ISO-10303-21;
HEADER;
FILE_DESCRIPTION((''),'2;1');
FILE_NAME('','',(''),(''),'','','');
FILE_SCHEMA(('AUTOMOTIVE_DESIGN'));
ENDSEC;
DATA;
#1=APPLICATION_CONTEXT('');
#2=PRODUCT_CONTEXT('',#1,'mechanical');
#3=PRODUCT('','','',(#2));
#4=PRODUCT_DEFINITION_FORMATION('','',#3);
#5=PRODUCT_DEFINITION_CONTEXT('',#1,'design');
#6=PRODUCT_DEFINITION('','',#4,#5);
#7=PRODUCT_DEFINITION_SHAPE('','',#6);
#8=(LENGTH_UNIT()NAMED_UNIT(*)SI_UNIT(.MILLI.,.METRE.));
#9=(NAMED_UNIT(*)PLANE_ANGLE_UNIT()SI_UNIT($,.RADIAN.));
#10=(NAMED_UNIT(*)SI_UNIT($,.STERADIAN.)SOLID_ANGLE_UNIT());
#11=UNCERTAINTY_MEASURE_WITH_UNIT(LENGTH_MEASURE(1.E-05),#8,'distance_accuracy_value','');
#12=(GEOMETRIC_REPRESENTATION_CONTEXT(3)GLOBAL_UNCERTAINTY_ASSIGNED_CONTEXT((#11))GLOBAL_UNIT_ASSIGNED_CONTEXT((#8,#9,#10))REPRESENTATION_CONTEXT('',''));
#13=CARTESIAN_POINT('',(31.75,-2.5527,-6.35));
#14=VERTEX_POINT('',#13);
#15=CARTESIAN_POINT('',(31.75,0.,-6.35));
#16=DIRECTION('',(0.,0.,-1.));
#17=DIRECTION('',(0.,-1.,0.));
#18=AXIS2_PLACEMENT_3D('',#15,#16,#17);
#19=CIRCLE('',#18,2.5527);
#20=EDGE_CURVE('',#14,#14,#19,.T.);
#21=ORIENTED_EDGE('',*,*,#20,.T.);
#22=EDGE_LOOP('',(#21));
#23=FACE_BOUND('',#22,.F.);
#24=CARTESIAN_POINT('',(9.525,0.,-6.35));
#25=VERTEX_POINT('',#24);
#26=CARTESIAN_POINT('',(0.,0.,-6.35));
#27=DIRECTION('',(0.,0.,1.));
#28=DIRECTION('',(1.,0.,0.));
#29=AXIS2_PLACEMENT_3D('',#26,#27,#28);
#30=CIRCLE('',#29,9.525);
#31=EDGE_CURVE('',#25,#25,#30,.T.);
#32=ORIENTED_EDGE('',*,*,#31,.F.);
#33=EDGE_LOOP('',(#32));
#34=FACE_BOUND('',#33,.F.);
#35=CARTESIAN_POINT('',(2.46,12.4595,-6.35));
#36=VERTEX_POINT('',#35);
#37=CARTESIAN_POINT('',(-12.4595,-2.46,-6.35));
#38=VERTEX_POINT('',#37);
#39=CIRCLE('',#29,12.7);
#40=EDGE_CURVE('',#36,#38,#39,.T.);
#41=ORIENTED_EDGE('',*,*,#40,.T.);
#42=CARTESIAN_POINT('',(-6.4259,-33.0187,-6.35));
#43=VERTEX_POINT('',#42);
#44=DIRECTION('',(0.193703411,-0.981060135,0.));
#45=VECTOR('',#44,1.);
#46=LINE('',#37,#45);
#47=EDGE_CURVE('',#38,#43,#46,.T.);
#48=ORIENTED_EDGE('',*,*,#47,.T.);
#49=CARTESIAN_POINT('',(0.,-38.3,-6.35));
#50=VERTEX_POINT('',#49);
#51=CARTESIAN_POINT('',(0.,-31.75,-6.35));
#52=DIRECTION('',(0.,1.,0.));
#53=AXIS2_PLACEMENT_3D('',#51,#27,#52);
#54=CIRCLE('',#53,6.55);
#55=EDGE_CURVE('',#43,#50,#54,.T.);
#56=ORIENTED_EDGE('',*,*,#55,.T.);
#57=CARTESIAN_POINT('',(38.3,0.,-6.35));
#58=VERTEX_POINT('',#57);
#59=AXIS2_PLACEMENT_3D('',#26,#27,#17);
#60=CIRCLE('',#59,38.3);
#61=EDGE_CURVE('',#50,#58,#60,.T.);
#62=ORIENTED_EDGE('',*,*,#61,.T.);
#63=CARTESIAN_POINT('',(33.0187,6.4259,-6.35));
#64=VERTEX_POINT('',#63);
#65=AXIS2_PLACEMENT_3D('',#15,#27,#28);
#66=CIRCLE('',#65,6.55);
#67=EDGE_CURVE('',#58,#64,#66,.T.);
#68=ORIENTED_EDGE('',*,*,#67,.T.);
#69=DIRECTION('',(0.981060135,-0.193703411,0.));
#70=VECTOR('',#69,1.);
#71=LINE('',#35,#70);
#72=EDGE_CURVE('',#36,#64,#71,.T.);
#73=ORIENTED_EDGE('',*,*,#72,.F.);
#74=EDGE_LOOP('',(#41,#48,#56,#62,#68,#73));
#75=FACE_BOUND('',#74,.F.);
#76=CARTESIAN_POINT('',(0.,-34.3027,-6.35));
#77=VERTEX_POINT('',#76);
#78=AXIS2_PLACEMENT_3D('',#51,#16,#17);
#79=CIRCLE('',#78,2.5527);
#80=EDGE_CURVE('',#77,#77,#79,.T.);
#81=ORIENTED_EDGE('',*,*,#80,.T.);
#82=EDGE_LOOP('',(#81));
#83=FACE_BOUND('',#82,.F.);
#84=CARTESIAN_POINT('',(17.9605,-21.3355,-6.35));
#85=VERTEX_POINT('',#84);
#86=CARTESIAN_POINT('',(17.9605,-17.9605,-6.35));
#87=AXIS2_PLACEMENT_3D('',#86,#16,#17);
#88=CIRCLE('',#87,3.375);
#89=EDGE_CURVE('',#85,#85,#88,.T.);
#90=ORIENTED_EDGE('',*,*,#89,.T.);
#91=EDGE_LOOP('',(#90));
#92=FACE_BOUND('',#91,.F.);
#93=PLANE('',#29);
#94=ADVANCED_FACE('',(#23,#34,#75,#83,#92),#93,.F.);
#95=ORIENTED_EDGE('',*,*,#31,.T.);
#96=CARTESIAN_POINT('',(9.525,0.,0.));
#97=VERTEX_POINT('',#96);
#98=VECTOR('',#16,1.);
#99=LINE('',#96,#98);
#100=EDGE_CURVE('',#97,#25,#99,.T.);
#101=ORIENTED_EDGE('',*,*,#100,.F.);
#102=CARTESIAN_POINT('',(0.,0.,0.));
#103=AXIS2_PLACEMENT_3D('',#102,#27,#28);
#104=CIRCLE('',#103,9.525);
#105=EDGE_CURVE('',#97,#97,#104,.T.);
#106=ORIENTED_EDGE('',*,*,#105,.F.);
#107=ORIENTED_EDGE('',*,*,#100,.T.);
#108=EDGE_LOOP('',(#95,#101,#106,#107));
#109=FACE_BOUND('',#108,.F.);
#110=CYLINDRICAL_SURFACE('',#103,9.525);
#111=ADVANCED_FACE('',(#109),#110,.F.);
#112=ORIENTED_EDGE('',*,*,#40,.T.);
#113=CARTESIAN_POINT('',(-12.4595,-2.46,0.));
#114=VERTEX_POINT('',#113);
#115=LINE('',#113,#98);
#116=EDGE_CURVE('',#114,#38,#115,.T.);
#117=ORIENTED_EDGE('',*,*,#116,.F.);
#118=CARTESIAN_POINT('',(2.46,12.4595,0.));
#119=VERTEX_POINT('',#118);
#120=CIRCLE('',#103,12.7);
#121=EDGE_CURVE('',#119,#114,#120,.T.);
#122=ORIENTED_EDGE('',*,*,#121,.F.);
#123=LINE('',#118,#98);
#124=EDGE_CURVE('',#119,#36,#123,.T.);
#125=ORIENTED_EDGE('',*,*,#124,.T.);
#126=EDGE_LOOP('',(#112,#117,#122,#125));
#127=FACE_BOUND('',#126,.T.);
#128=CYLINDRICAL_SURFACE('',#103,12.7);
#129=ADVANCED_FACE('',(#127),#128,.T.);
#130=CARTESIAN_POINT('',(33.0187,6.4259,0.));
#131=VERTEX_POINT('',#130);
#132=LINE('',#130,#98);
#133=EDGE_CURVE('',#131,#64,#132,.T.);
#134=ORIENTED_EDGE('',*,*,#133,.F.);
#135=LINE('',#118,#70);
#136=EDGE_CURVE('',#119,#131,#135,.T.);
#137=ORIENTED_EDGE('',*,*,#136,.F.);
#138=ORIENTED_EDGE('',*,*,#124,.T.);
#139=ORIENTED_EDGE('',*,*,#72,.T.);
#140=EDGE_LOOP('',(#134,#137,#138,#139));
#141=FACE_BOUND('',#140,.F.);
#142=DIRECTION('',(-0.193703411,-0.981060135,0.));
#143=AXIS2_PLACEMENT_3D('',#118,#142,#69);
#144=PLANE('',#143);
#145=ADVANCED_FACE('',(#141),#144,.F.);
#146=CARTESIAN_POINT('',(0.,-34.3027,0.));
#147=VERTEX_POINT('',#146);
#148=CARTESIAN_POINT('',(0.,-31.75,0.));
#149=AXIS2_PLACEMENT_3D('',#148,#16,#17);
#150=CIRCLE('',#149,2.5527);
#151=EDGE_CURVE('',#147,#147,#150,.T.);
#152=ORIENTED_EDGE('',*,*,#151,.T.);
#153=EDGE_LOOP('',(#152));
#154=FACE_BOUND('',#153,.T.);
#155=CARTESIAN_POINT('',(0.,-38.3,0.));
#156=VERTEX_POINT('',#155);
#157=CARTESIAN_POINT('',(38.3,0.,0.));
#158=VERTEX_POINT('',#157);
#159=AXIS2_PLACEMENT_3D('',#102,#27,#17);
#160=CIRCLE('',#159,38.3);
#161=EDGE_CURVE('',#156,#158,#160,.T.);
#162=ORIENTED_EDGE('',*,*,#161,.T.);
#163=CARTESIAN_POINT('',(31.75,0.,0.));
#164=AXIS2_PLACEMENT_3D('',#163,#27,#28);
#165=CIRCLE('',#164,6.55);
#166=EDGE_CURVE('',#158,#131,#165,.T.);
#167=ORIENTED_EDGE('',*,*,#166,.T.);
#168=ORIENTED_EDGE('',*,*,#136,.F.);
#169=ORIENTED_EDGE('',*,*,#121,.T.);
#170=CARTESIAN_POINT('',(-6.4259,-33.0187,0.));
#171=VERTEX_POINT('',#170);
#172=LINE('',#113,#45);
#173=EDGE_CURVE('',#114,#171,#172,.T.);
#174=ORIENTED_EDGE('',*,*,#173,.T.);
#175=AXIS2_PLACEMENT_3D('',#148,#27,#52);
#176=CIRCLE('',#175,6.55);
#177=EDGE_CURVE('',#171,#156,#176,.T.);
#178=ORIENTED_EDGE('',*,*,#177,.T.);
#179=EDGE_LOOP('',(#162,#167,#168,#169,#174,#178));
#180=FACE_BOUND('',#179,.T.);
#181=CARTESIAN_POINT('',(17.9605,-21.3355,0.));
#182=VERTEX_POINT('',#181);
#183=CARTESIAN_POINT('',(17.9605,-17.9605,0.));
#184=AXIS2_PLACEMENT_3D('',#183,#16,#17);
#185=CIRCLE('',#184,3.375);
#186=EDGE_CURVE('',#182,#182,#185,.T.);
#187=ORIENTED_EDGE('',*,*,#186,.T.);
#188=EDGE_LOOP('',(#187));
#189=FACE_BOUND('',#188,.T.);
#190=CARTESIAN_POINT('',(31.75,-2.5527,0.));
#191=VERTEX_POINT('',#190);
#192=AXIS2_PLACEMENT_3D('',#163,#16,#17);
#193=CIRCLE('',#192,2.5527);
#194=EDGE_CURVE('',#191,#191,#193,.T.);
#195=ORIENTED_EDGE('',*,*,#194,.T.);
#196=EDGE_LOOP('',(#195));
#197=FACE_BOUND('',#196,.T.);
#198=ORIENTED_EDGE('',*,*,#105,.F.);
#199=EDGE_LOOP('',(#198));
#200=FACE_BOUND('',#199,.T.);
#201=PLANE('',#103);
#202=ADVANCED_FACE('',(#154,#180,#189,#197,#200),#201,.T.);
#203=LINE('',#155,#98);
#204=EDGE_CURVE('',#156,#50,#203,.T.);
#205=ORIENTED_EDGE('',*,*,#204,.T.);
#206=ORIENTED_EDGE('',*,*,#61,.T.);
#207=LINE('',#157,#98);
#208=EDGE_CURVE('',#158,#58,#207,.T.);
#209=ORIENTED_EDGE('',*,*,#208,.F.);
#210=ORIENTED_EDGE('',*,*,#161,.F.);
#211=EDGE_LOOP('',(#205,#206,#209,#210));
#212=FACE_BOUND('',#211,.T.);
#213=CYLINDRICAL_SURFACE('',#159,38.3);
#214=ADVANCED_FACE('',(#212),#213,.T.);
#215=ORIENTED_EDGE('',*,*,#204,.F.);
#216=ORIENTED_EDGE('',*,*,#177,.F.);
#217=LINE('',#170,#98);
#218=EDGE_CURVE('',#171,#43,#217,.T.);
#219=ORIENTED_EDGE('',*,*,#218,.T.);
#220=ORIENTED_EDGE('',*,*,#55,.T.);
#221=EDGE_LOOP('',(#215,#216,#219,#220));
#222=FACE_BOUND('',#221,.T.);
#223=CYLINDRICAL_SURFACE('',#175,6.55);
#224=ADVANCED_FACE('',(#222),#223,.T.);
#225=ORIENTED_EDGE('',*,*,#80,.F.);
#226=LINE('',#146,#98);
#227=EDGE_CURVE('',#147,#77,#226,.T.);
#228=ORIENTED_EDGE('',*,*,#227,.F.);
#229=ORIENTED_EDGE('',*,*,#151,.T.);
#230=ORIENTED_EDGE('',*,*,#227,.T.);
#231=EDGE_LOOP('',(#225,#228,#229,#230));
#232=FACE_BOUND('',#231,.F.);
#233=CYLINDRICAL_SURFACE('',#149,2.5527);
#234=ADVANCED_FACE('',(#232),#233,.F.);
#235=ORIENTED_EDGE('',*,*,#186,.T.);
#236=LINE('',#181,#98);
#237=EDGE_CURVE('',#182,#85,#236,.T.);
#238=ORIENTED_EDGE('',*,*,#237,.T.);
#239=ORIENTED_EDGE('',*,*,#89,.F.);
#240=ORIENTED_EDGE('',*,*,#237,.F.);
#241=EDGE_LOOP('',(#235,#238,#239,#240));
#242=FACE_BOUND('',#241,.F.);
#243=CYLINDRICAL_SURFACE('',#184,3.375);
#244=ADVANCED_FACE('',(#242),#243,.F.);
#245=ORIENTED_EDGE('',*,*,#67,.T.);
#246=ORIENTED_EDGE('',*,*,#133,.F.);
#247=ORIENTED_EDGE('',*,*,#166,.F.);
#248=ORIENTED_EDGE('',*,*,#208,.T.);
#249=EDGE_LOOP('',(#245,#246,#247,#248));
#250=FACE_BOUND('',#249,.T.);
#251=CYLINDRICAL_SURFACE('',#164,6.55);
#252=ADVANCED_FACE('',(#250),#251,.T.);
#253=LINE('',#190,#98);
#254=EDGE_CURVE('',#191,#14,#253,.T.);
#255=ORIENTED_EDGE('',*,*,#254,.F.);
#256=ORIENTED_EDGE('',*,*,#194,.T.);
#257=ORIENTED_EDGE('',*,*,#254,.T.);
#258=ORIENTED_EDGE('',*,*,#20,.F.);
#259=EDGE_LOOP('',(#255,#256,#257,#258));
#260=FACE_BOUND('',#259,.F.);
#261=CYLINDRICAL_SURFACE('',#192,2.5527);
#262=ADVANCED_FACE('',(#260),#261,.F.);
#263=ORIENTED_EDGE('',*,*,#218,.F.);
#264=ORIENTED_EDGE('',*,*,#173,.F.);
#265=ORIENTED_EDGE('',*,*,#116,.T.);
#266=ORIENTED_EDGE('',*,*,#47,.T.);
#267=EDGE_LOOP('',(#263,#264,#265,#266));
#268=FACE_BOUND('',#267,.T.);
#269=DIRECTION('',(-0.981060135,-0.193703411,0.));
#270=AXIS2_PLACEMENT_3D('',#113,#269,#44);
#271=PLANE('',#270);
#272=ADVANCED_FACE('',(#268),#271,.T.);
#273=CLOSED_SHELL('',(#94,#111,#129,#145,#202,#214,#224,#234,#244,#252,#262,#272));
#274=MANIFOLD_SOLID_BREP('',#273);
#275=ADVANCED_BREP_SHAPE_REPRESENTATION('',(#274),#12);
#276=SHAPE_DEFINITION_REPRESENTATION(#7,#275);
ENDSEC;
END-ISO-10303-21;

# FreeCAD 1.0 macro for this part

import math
import FreeCAD as App
import Part
import Sketcher
from FreeCAD import Vector

doc = App.newDocument("Part")
body = doc.addObject("PartDesign::Body", "Body")

sketch1 = body.newObject("Sketcher::SketchObject", "Sketch")
sketch1.AttachmentSupport = (doc.getObject("XY_Plane"), [""])
sketch1.MapMode = "FlatFace"
sketch1.addGeometry([
    Part.ArcOfCircle(Part.Circle(Vector(0, 0, 0), Vector(0, 0, 1), 25), math.radians(-90), math.radians(-60)),
    Part.ArcOfCircle(Part.Circle(Vector(0, -32, 0), Vector(0, 0, 1), 7), math.radians(90), math.radians(270)),
    Part.ArcOfCircle(Part.Circle(Vector(0, 0, 0), Vector(0, 0, 1), 38), math.radians(-90), math.radians(0)),
    Part.ArcOfCircle(Part.Circle(Vector(32, 0, 0), Vector(0, 0, 1), 7), math.radians(0), math.radians(180)),
    Part.ArcOfCircle(Part.Circle(Vector(0, 0, 0), Vector(0, 0, 1), 25), math.radians(-30), math.radians(0)),
    Part.ArcOfCircle(Part.Circle(Vector(18, -18, 0), Vector(0, 0, 1), 7), math.radians(54), math.radians(216)),
], False)
sketch1.addConstraint([
    Sketcher.Constraint("Tangent", 0, 1, 1, 1),
    Sketcher.Constraint("Tangent", 1, 2, 2, 1),
    Sketcher.Constraint("Tangent", 2, 2, 3, 1),
    Sketcher.Constraint("Tangent", 3, 2, 4, 2),
    Sketcher.Constraint("Coincident", 4, 1, 5, 1),
    Sketcher.Constraint("Coincident", 5, 2, 0, 2),
    Sketcher.Constraint("Coincident", 0, 3, -1, 1),
    Sketcher.Constraint("Coincident", 2, 3, -1, 1),
    Sketcher.Constraint("Coincident", 4, 3, -1, 1),
    Sketcher.Constraint("Equal", 1, 3),
    Sketcher.Constraint("Equal", 3, 5),
    Sketcher.Constraint("PointOnObject", 1, 3, -2),
    Sketcher.Constraint("PointOnObject", 3, 3, -1),
    Sketcher.Constraint("Radius", 1, 6.55),
    Sketcher.Constraint("Radius", 0, 25.2),
    Sketcher.Constraint("DistanceY", 4, 1, -1, 1, 12.65),
    Sketcher.Constraint("DistanceX", -1, 1, 5, 2, 12.65),
])
pad1 = body.newObject("PartDesign::Pad", "Pad")
pad1.Profile = sketch1
pad1.Length = 6.35
pad1.Reversed = True

sketch2 = body.newObject("Sketcher::SketchObject", "Sketch001")
sketch2.AttachmentSupport = (doc.getObject("XY_Plane"), [""])
sketch2.MapMode = "FlatFace"
sketch2.addGeometry([
    Part.Circle(Vector(0, 31.8, 0), Vector(0, 0, 1), 3.4),
    Part.Circle(Vector(18, -18, 0), Vector(0, 0, 1), 3.4),
], False)
sketch2.addConstraint([
    Sketcher.Constraint("Equal", 0, 1),
    Sketcher.Constraint("PointOnObject", 0, 3, -2),
    Sketcher.Constraint("Diameter", 0, 6.75),
    Sketcher.Constraint("DistanceY", -1, 1, 0, 3, 31.75),
    Sketcher.Constraint("DistanceX", -1, 1, 1, 3, 17.9605),
    Sketcher.Constraint("DistanceY", 1, 3, -1, 1, 17.9605),
])
doc.recompute()
hole = body.newObject("PartDesign::Hole", "Hole")
hole.Profile = sketch2
hole.ThreadType = "None"
hole.Diameter = 6.75
hole.DepthType = "Dimension"
hole.Depth = 9.525
hole.DrillPoint = "Flat"

sketch3 = body.newObject("Sketcher::SketchObject", "Sketch002")
sketch3.AttachmentSupport = (doc.getObject("XY_Plane"), [""])
sketch3.MapMode = "FlatFace"
sketch3.addGeometry([
    Part.ArcOfCircle(Part.Circle(Vector(18, -18, 0), Vector(0, 0, 1), 7), math.radians(54), math.radians(216)),
    Part.ArcOfCircle(Part.Circle(Vector(0, 0, 0), Vector(0, 0, 1), 25), math.radians(-30), math.radians(0)),
    Part.ArcOfCircle(Part.Circle(Vector(32, 0, 0), Vector(0, 0, 1), 7), math.radians(79), math.radians(180)),
    Part.LineSegment(Vector(33, 6, 0), Vector(2, 12, 0)),
    Part.ArcOfCircle(Part.Circle(Vector(0, 0, 0), Vector(0, 0, 1), 13), math.radians(79), math.radians(191)),
    Part.LineSegment(Vector(-12, -2, 0), Vector(-6, -33, 0)),
    Part.ArcOfCircle(Part.Circle(Vector(0, -32, 0), Vector(0, 0, 1), 7), math.radians(90), math.radians(191)),
    Part.ArcOfCircle(Part.Circle(Vector(0, 0, 0), Vector(0, 0, 1), 25), math.radians(-90), math.radians(-60)),
    Part.Circle(Vector(0, 0, 0), Vector(0, 0, 1), 10),
], False)
sketch3.addConstraint([
    Sketcher.Constraint("Coincident", 0, 1, 1, 1),
    Sketcher.Constraint("Tangent", 1, 2, 2, 2),
    Sketcher.Constraint("Tangent", 2, 1, 3, 1),
    Sketcher.Constraint("Tangent", 3, 2, 4, 1),
    Sketcher.Constraint("Tangent", 4, 2, 5, 1),
    Sketcher.Constraint("Tangent", 5, 2, 6, 2),
    Sketcher.Constraint("Tangent", 6, 1, 7, 1),
    Sketcher.Constraint("Coincident", 7, 2, 0, 2),
    Sketcher.Constraint("Coincident", 1, 3, -1, 1),
    Sketcher.Constraint("Coincident", 4, 3, -1, 1),
    Sketcher.Constraint("Coincident", 7, 3, -1, 1),
    Sketcher.Constraint("Coincident", 8, 3, -1, 1),
    Sketcher.Constraint("Equal", 0, 2),
    Sketcher.Constraint("Equal", 2, 6),
    Sketcher.Constraint("Equal", 1, 7),
    Sketcher.Constraint("PointOnObject", 2, 3, -1),
    Sketcher.Constraint("PointOnObject", 6, 3, -2),
    Sketcher.Constraint("Diameter", 8, 19.05),
    Sketcher.Constraint("Radius", 1, 25.2),
    Sketcher.Constraint("Radius", 4, 12.7),
    Sketcher.Constraint("Radius", 0, 6.55),
    Sketcher.Constraint("DistanceY", 0, 1, -1, 1, 12.65),
    Sketcher.Constraint("DistanceX", -1, 1, 7, 2, 12.65),
])
pad2 = body.newObject("PartDesign::Pad", "Pad001")
pad2.Profile = sketch3
pad2.Length = 6.35
pad2.Reversed = True

sketch4 = body.newObject("Sketcher::SketchObject", "Sketch003")
sketch4.AttachmentSupport = (doc.getObject("XY_Plane"), [""])
sketch4.MapMode = "FlatFace"
sketch4.addGeometry([
    Part.Circle(Vector(0, -31.8, 0), Vector(0, 0, 1), 2.6),
    Part.Circle(Vector(31.8, 0, 0), Vector(0, 0, 1), 2.6),
], False)
sketch4.addConstraint([
    Sketcher.Constraint("Equal", 0, 1),
    Sketcher.Constraint("PointOnObject", 0, 3, -2),
    Sketcher.Constraint("PointOnObject", 1, 3, -1),
    Sketcher.Constraint("Diameter", 0, 5.1054),
    Sketcher.Constraint("DistanceY", 0, 3, -1, 1, 31.75),
    Sketcher.Constraint("DistanceX", -1, 1, 1, 3, 31.75),
])
doc.recompute()
hole2 = body.newObject("PartDesign::Hole", "Hole001")
hole2.Profile = sketch4
hole2.ThreadType = "None"
hole2.Diameter = 5.1054
hole2.DepthType = "Dimension"
hole2.Depth = 9.525
hole2.DrillPoint = "Flat"

doc.recompute()
